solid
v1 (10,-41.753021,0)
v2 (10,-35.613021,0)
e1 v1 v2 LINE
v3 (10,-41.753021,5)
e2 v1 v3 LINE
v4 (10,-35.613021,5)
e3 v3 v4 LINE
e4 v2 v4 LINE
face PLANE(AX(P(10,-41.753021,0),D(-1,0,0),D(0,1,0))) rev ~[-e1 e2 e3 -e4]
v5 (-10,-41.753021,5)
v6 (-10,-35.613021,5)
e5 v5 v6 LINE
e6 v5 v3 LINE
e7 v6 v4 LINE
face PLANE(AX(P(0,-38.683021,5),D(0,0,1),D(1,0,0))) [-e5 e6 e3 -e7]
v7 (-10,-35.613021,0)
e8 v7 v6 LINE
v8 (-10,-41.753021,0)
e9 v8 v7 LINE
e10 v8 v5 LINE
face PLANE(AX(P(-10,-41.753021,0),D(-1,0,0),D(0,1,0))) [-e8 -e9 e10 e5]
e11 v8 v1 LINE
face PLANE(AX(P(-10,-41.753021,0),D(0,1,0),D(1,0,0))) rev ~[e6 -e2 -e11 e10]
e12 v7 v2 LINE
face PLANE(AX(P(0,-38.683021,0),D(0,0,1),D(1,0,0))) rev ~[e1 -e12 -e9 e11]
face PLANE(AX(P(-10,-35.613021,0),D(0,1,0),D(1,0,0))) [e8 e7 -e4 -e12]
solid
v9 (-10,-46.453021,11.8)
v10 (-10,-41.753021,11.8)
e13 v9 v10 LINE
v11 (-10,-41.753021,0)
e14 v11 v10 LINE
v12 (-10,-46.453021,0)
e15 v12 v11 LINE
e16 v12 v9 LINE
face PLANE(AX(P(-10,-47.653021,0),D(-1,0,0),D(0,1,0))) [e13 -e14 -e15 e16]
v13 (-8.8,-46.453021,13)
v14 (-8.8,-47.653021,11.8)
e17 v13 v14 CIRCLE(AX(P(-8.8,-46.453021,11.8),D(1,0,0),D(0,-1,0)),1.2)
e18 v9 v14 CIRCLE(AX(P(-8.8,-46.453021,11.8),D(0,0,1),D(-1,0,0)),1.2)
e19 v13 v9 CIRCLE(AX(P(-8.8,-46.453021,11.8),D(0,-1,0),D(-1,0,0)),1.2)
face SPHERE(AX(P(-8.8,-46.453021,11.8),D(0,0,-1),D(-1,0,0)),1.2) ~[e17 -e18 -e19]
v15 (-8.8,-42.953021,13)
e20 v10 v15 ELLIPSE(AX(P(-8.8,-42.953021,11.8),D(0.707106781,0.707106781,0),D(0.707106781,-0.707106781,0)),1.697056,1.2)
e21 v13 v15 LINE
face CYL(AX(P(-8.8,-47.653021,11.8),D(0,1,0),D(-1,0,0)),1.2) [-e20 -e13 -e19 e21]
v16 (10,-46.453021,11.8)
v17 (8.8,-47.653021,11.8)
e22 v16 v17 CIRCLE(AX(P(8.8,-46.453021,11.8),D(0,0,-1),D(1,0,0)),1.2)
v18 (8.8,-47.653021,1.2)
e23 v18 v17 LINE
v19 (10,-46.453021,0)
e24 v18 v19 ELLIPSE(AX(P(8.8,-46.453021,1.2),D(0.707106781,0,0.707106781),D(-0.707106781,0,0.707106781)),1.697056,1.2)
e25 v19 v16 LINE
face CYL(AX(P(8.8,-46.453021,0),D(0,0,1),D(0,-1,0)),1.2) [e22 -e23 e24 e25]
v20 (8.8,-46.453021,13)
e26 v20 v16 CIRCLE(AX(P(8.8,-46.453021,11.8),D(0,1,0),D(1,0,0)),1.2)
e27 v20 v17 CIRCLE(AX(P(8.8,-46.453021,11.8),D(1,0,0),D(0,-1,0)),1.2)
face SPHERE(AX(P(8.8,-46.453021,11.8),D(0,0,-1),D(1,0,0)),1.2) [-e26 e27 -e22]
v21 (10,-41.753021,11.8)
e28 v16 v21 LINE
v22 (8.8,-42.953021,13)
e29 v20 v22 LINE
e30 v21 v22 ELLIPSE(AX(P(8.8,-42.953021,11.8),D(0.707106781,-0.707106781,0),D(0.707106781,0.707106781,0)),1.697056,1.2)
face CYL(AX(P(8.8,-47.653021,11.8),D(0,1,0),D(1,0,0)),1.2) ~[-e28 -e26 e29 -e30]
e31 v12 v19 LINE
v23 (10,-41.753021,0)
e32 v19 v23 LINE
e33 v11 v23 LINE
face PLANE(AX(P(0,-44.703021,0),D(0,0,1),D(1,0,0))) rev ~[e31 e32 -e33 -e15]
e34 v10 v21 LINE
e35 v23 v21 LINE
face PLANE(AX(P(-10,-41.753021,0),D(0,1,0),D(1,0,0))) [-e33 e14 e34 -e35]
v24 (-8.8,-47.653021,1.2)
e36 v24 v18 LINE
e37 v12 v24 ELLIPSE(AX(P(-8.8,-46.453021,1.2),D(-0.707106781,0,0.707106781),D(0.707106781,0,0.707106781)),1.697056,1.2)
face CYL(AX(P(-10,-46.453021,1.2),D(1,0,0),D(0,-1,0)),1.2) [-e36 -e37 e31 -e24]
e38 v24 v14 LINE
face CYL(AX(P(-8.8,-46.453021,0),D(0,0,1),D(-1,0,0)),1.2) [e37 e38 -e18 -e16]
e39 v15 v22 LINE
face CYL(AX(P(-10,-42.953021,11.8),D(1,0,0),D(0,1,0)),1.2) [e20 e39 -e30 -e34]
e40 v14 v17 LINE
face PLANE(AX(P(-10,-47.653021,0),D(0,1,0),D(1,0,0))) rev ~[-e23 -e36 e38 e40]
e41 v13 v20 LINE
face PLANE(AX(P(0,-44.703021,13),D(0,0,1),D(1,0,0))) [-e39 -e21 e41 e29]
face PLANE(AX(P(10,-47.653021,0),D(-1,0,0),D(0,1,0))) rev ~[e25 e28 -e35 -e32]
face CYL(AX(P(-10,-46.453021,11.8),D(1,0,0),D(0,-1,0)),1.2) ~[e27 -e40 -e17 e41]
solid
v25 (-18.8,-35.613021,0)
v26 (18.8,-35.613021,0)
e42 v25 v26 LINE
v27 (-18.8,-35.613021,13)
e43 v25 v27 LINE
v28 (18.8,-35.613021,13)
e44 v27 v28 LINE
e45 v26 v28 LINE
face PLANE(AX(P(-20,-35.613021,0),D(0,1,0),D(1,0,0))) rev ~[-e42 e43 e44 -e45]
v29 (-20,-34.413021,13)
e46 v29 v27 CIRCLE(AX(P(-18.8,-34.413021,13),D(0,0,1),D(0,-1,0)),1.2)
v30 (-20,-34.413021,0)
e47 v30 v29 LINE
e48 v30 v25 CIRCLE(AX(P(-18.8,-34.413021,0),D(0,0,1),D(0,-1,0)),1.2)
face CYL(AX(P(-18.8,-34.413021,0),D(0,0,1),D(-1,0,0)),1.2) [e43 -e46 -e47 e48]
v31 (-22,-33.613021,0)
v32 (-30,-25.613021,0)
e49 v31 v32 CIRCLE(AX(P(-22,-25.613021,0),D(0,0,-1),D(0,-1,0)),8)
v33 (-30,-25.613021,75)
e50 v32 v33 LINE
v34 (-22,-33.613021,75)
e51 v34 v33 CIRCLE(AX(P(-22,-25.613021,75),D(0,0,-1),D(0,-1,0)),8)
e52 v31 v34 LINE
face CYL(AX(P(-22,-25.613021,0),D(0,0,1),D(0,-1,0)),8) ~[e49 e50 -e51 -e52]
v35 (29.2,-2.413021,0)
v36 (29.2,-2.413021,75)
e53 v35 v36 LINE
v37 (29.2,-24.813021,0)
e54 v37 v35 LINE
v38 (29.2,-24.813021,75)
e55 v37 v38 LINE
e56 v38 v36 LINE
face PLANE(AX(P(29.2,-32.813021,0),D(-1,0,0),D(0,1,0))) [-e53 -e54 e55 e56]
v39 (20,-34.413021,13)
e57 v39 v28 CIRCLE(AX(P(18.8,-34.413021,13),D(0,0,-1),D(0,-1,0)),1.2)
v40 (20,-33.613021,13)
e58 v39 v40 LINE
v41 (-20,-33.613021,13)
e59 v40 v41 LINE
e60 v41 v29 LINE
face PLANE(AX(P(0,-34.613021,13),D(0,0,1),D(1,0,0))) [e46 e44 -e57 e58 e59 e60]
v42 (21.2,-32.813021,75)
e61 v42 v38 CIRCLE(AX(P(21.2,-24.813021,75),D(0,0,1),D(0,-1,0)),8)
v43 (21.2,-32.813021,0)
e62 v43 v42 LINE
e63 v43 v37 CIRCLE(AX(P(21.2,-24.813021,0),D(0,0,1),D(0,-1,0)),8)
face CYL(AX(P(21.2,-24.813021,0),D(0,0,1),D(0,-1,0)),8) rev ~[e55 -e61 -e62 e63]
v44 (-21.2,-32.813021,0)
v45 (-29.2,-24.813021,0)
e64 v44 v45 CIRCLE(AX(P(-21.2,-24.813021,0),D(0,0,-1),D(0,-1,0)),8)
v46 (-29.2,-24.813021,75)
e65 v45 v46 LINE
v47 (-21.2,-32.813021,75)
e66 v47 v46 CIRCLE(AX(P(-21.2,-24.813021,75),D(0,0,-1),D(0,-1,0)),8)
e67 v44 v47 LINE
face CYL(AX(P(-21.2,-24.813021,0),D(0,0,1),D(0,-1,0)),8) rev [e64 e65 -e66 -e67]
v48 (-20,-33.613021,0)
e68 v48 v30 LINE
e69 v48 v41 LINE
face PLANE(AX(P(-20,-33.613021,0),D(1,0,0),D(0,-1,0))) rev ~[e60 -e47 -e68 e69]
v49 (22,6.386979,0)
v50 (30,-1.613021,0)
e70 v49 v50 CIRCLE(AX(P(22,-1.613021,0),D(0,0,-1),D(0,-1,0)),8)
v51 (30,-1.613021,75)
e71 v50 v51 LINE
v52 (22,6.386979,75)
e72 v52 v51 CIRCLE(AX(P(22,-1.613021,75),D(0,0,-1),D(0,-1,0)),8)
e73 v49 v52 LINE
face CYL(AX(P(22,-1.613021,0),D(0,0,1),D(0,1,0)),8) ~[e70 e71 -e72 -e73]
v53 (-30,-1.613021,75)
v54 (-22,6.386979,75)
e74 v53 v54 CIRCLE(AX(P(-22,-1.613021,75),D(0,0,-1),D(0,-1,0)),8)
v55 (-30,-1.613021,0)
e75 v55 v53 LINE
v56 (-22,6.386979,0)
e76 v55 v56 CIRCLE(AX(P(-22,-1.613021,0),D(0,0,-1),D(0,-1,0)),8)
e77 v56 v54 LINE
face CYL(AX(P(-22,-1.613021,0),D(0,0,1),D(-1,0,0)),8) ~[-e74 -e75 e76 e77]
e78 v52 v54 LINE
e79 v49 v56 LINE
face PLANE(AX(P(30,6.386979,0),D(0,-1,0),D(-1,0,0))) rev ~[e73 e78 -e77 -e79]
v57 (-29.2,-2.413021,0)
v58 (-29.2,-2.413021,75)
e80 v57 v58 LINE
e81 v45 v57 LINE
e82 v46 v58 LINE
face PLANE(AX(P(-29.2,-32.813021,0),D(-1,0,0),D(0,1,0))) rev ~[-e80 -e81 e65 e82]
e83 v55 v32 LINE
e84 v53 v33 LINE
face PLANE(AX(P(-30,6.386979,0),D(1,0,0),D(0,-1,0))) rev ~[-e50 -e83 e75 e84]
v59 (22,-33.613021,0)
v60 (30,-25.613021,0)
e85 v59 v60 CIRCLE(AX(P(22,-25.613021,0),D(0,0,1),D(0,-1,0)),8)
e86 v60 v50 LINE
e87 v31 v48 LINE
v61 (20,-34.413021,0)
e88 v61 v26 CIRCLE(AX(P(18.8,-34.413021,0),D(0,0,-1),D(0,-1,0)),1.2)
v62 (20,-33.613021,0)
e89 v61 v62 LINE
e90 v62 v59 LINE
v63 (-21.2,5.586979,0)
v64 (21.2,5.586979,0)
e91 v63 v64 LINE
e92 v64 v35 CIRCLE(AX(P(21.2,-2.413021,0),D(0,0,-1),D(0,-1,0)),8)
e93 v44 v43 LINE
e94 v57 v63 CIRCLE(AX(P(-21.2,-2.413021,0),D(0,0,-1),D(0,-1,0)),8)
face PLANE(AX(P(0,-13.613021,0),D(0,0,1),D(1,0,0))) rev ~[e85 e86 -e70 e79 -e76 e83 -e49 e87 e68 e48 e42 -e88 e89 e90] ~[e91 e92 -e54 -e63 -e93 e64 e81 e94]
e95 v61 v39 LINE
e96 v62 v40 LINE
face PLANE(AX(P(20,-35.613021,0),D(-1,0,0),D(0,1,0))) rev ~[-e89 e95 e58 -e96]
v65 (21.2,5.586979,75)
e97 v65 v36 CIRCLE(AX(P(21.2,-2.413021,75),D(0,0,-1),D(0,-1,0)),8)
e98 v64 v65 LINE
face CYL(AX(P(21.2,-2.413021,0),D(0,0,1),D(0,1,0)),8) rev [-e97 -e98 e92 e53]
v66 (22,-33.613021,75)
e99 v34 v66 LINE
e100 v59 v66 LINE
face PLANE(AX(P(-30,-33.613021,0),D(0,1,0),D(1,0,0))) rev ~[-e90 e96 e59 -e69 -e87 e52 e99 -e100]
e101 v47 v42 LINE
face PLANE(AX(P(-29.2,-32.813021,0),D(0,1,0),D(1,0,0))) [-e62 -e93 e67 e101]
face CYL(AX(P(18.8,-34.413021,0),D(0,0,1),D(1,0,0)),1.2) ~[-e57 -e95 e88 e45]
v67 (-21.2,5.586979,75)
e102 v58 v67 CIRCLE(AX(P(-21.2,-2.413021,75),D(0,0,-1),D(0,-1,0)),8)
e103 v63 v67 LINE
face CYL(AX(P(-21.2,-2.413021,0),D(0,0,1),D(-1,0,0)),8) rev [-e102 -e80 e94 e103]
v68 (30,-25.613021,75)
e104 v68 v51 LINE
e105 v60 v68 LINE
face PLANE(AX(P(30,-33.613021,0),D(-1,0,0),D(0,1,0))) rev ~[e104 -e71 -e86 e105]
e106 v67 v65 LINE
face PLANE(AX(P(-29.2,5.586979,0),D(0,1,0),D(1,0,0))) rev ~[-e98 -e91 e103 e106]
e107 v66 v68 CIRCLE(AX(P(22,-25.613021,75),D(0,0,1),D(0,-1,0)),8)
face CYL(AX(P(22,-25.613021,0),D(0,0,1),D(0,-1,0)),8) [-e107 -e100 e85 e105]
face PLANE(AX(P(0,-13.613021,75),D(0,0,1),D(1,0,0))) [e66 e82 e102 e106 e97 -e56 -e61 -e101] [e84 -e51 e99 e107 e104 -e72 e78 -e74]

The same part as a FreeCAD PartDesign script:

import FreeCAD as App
import Part
import Sketcher
Q = App.Units.Quantity


def edges_at(feature, points):
    """Names of the edges that pass closest to the given points."""
    edges = feature.Shape.Edges
    near = lambda p: min(range(len(edges)), key=lambda i: edges[i].distToShape(Part.Vertex(*p))[0])
    return sorted({f"Edge{near(p) + 1}" for p in points})

doc = App.newDocument("Part")
body = doc.addObject("PartDesign::Body", "Body")

sketch1 = body.newObject("Sketcher::SketchObject", "Sketch")
sketch1.AttachmentSupport = (doc.getObject("XY_Plane"), [""])
sketch1.MapMode = "FlatFace"
sketch1.addGeometry(Part.LineSegment(App.Vector(-10, -42, 0), App.Vector(-10, -48, 0)), False)
sketch1.addGeometry(Part.LineSegment(App.Vector(-10, -48, 0), App.Vector(10, -48, 0)), False)
sketch1.addGeometry(Part.LineSegment(App.Vector(10, -48, 0), App.Vector(10, -42, 0)), False)
sketch1.addGeometry(Part.LineSegment(App.Vector(10, -42, 0), App.Vector(-10, -42, 0)), False)
sketch1.addConstraint(Sketcher.Constraint("Coincident", 0, 2, 1, 1))
sketch1.addConstraint(Sketcher.Constraint("Coincident", 1, 2, 2, 1))
sketch1.addConstraint(Sketcher.Constraint("Coincident", 2, 2, 3, 1))
sketch1.addConstraint(Sketcher.Constraint("Coincident", 3, 2, 0, 1))
sketch1.addConstraint(Sketcher.Constraint("Vertical", 0))
sketch1.addConstraint(Sketcher.Constraint("Horizontal", 1))
sketch1.addConstraint(Sketcher.Constraint("Vertical", 2))
sketch1.addConstraint(Sketcher.Constraint("Horizontal", 3))
sketch1.addConstraint(Sketcher.Constraint("DistanceX", 1, 1, 1, 2, Q("20 mm")))
sketch1.addConstraint(Sketcher.Constraint("DistanceY", 0, 2, 0, 1, Q("5.9 mm")))
sketch1.addConstraint(Sketcher.Constraint("DistanceX", 0, 2, -1, 1, Q("10 mm")))
sketch1.addConstraint(Sketcher.Constraint("DistanceY", 0, 2, -1, 1, Q("47.653021 mm")))
pad1 = body.newObject("PartDesign::Pad", "Pad")
pad1.Profile = sketch1
pad1.Length = 13
doc.recompute()

fillet = body.newObject("PartDesign::Fillet", "Fillet")
fillet.Base = (pad1, edges_at(pad1, [
    (10, -47.653, 6.5),
    (-10, -47.653, 6.5),
    (10, -44.703, 13),
    (0, -41.753, 13),
    (-10, -44.703, 13),
    (0, -47.653, 13),
    (0, -47.653, 0),
]))
fillet.Radius = 1.2
body2 = doc.addObject("PartDesign::Body", "Body001")

sketch2 = body2.newObject("Sketcher::SketchObject", "Sketch001")
sketch2.AttachmentSupport = (doc.getObject("XY_Plane001"), [""])
sketch2.MapMode = "FlatFace"
sketch2.addGeometry(Part.LineSegment(App.Vector(20, -35.6, 0), App.Vector(20, -33.6, 0)), False)
sketch2.addGeometry(Part.LineSegment(App.Vector(20, -33.6, 0), App.Vector(-20, -33.6, 0)), False)
sketch2.addGeometry(Part.LineSegment(App.Vector(-20, -33.6, 0), App.Vector(-20, -35.6, 0)), False)
sketch2.addGeometry(Part.LineSegment(App.Vector(-20, -35.6, 0), App.Vector(20, -35.6, 0)), False)
sketch2.addConstraint(Sketcher.Constraint("Coincident", 0, 2, 1, 1))
sketch2.addConstraint(Sketcher.Constraint("Coincident", 1, 2, 2, 1))
sketch2.addConstraint(Sketcher.Constraint("Coincident", 2, 2, 3, 1))
sketch2.addConstraint(Sketcher.Constraint("Coincident", 3, 2, 0, 1))
sketch2.addConstraint(Sketcher.Constraint("Vertical", 0))
sketch2.addConstraint(Sketcher.Constraint("Horizontal", 1))
sketch2.addConstraint(Sketcher.Constraint("Vertical", 2))
sketch2.addConstraint(Sketcher.Constraint("Horizontal", 3))
sketch2.addConstraint(Sketcher.Constraint("DistanceX", 1, 2, 1, 1, Q("40 mm")))
sketch2.addConstraint(Sketcher.Constraint("DistanceY", 0, 1, 0, 2, Q("2 mm")))
sketch2.addConstraint(Sketcher.Constraint("DistanceX", -1, 1, 0, 2, Q("20 mm")))
sketch2.addConstraint(Sketcher.Constraint("DistanceY", 0, 2, -1, 1, Q("33.613021 mm")))
pad2 = body2.newObject("PartDesign::Pad", "Pad001")
pad2.Profile = sketch2
pad2.Length = 13

sketch3 = body2.newObject("Sketcher::SketchObject", "Sketch002")
sketch3.AttachmentSupport = (doc.getObject("XY_Plane001"), [""])
sketch3.MapMode = "FlatFace"
sketch3.addGeometry(Part.LineSegment(App.Vector(30, -34, 0), App.Vector(30, 6, 0)), False)
sketch3.addGeometry(Part.LineSegment(App.Vector(30, 6, 0), App.Vector(-30, 6, 0)), False)
sketch3.addGeometry(Part.LineSegment(App.Vector(-30, 6, 0), App.Vector(-30, -34, 0)), False)
sketch3.addGeometry(Part.LineSegment(App.Vector(-30, -34, 0), App.Vector(30, -34, 0)), False)
sketch3.addGeometry(Part.LineSegment(App.Vector(29, -33, 0), App.Vector(-29, -33, 0)), False)
sketch3.addGeometry(Part.LineSegment(App.Vector(-29, -33, 0), App.Vector(-29, 6, 0)), False)
sketch3.addGeometry(Part.LineSegment(App.Vector(-29, 6, 0), App.Vector(29, 6, 0)), False)
sketch3.addGeometry(Part.LineSegment(App.Vector(29, 6, 0), App.Vector(29, -33, 0)), False)
sketch3.addConstraint(Sketcher.Constraint("Coincident", 0, 2, 1, 1))
sketch3.addConstraint(Sketcher.Constraint("Coincident", 1, 2, 2, 1))
sketch3.addConstraint(Sketcher.Constraint("Coincident", 2, 2, 3, 1))
sketch3.addConstraint(Sketcher.Constraint("Coincident", 3, 2, 0, 1))
sketch3.addConstraint(Sketcher.Constraint("Coincident", 4, 2, 5, 1))
sketch3.addConstraint(Sketcher.Constraint("Coincident", 5, 2, 6, 1))
sketch3.addConstraint(Sketcher.Constraint("Coincident", 6, 2, 7, 1))
sketch3.addConstraint(Sketcher.Constraint("Coincident", 7, 2, 4, 1))
sketch3.addConstraint(Sketcher.Constraint("Vertical", 0))
sketch3.addConstraint(Sketcher.Constraint("Horizontal", 1))
sketch3.addConstraint(Sketcher.Constraint("Vertical", 2))
sketch3.addConstraint(Sketcher.Constraint("Horizontal", 3))
sketch3.addConstraint(Sketcher.Constraint("Horizontal", 4))
sketch3.addConstraint(Sketcher.Constraint("Vertical", 5))
sketch3.addConstraint(Sketcher.Constraint("Horizontal", 6))
sketch3.addConstraint(Sketcher.Constraint("Vertical", 7))
sketch3.addConstraint(Sketcher.Constraint("DistanceX", 1, 2, 1, 1, Q("60 mm")))
sketch3.addConstraint(Sketcher.Constraint("DistanceY", 0, 1, 0, 2, Q("40 mm")))
sketch3.addConstraint(Sketcher.Constraint("DistanceX", 4, 2, 4, 1, Q("58.4 mm")))
sketch3.addConstraint(Sketcher.Constraint("DistanceY", 5, 1, 5, 2, Q("38.4 mm")))
sketch3.addConstraint(Sketcher.Constraint("DistanceX", -1, 1, 0, 2, Q("30 mm")))
sketch3.addConstraint(Sketcher.Constraint("DistanceX", 4, 2, -1, 1, Q("29.2 mm")))
sketch3.addConstraint(Sketcher.Constraint("DistanceY", 2, 2, 4, 2, Q("0.8 mm")))
sketch3.addConstraint(Sketcher.Constraint("DistanceY", -1, 1, 0, 2, Q("6.386979 mm")))
pad3 = body2.newObject("PartDesign::Pad", "Pad002")
pad3.Profile = sketch3
pad3.Length = 75
doc.recompute()

fillet2 = body2.newObject("PartDesign::Fillet", "Fillet001")
fillet2.Base = (pad3, edges_at(pad3, [(20, -35.613, 6.5), (-20, -35.613, 6.5)]))
fillet2.Radius = 1.2
doc.recompute()

fillet3 = body2.newObject("PartDesign::Fillet", "Fillet002")
fillet3.Base = (fillet2, edges_at(fillet2, [
    (29.2, 5.587, 37.5),
    (29.2, -32.813, 37.5),
    (-29.2, -32.813, 37.5),
    (-29.2, 5.587, 37.5),
    (-30, -33.613, 37.5),
    (-30, 6.387, 37.5),
    (30, -33.613, 37.5),
    (30, 6.387, 37.5),
]))
fillet3.Radius = 8
body3 = doc.addObject("PartDesign::Body", "Body002")

sketch4 = body3.newObject("Sketcher::SketchObject", "Sketch003")
sketch4.AttachmentSupport = (doc.getObject("XY_Plane002"), [""])
sketch4.MapMode = "FlatFace"
sketch4.addGeometry(Part.LineSegment(App.Vector(-10, -36, 0), App.Vector(-10, -42, 0)), False)
sketch4.addGeometry(Part.LineSegment(App.Vector(-10, -42, 0), App.Vector(10, -42, 0)), False)
sketch4.addGeometry(Part.LineSegment(App.Vector(10, -42, 0), App.Vector(10, -36, 0)), False)
sketch4.addGeometry(Part.LineSegment(App.Vector(10, -36, 0), App.Vector(-10, -36, 0)), False)
sketch4.addConstraint(Sketcher.Constraint("Coincident", 0, 2, 1, 1))
sketch4.addConstraint(Sketcher.Constraint("Coincident", 1, 2, 2, 1))
sketch4.addConstraint(Sketcher.Constraint("Coincident", 2, 2, 3, 1))
sketch4.addConstraint(Sketcher.Constraint("Coincident", 3, 2, 0, 1))
sketch4.addConstraint(Sketcher.Constraint("Vertical", 0))
sketch4.addConstraint(Sketcher.Constraint("Horizontal", 1))
sketch4.addConstraint(Sketcher.Constraint("Vertical", 2))
sketch4.addConstraint(Sketcher.Constraint("Horizontal", 3))
sketch4.addConstraint(Sketcher.Constraint("DistanceX", 1, 1, 1, 2, Q("20 mm")))
sketch4.addConstraint(Sketcher.Constraint("DistanceX", 0, 2, -1, 1, Q("10 mm")))
sketch4.addConstraint(Sketcher.Constraint("DistanceY", 0, 2, 0, 1, Q("6.14 mm")))
sketch4.addConstraint(Sketcher.Constraint("DistanceY", 0, 2, -1, 1, Q("41.753021 mm")))
pad4 = body3.newObject("PartDesign::Pad", "Pad003")
pad4.Profile = sketch4
pad4.Length = 5

doc.recompute()
